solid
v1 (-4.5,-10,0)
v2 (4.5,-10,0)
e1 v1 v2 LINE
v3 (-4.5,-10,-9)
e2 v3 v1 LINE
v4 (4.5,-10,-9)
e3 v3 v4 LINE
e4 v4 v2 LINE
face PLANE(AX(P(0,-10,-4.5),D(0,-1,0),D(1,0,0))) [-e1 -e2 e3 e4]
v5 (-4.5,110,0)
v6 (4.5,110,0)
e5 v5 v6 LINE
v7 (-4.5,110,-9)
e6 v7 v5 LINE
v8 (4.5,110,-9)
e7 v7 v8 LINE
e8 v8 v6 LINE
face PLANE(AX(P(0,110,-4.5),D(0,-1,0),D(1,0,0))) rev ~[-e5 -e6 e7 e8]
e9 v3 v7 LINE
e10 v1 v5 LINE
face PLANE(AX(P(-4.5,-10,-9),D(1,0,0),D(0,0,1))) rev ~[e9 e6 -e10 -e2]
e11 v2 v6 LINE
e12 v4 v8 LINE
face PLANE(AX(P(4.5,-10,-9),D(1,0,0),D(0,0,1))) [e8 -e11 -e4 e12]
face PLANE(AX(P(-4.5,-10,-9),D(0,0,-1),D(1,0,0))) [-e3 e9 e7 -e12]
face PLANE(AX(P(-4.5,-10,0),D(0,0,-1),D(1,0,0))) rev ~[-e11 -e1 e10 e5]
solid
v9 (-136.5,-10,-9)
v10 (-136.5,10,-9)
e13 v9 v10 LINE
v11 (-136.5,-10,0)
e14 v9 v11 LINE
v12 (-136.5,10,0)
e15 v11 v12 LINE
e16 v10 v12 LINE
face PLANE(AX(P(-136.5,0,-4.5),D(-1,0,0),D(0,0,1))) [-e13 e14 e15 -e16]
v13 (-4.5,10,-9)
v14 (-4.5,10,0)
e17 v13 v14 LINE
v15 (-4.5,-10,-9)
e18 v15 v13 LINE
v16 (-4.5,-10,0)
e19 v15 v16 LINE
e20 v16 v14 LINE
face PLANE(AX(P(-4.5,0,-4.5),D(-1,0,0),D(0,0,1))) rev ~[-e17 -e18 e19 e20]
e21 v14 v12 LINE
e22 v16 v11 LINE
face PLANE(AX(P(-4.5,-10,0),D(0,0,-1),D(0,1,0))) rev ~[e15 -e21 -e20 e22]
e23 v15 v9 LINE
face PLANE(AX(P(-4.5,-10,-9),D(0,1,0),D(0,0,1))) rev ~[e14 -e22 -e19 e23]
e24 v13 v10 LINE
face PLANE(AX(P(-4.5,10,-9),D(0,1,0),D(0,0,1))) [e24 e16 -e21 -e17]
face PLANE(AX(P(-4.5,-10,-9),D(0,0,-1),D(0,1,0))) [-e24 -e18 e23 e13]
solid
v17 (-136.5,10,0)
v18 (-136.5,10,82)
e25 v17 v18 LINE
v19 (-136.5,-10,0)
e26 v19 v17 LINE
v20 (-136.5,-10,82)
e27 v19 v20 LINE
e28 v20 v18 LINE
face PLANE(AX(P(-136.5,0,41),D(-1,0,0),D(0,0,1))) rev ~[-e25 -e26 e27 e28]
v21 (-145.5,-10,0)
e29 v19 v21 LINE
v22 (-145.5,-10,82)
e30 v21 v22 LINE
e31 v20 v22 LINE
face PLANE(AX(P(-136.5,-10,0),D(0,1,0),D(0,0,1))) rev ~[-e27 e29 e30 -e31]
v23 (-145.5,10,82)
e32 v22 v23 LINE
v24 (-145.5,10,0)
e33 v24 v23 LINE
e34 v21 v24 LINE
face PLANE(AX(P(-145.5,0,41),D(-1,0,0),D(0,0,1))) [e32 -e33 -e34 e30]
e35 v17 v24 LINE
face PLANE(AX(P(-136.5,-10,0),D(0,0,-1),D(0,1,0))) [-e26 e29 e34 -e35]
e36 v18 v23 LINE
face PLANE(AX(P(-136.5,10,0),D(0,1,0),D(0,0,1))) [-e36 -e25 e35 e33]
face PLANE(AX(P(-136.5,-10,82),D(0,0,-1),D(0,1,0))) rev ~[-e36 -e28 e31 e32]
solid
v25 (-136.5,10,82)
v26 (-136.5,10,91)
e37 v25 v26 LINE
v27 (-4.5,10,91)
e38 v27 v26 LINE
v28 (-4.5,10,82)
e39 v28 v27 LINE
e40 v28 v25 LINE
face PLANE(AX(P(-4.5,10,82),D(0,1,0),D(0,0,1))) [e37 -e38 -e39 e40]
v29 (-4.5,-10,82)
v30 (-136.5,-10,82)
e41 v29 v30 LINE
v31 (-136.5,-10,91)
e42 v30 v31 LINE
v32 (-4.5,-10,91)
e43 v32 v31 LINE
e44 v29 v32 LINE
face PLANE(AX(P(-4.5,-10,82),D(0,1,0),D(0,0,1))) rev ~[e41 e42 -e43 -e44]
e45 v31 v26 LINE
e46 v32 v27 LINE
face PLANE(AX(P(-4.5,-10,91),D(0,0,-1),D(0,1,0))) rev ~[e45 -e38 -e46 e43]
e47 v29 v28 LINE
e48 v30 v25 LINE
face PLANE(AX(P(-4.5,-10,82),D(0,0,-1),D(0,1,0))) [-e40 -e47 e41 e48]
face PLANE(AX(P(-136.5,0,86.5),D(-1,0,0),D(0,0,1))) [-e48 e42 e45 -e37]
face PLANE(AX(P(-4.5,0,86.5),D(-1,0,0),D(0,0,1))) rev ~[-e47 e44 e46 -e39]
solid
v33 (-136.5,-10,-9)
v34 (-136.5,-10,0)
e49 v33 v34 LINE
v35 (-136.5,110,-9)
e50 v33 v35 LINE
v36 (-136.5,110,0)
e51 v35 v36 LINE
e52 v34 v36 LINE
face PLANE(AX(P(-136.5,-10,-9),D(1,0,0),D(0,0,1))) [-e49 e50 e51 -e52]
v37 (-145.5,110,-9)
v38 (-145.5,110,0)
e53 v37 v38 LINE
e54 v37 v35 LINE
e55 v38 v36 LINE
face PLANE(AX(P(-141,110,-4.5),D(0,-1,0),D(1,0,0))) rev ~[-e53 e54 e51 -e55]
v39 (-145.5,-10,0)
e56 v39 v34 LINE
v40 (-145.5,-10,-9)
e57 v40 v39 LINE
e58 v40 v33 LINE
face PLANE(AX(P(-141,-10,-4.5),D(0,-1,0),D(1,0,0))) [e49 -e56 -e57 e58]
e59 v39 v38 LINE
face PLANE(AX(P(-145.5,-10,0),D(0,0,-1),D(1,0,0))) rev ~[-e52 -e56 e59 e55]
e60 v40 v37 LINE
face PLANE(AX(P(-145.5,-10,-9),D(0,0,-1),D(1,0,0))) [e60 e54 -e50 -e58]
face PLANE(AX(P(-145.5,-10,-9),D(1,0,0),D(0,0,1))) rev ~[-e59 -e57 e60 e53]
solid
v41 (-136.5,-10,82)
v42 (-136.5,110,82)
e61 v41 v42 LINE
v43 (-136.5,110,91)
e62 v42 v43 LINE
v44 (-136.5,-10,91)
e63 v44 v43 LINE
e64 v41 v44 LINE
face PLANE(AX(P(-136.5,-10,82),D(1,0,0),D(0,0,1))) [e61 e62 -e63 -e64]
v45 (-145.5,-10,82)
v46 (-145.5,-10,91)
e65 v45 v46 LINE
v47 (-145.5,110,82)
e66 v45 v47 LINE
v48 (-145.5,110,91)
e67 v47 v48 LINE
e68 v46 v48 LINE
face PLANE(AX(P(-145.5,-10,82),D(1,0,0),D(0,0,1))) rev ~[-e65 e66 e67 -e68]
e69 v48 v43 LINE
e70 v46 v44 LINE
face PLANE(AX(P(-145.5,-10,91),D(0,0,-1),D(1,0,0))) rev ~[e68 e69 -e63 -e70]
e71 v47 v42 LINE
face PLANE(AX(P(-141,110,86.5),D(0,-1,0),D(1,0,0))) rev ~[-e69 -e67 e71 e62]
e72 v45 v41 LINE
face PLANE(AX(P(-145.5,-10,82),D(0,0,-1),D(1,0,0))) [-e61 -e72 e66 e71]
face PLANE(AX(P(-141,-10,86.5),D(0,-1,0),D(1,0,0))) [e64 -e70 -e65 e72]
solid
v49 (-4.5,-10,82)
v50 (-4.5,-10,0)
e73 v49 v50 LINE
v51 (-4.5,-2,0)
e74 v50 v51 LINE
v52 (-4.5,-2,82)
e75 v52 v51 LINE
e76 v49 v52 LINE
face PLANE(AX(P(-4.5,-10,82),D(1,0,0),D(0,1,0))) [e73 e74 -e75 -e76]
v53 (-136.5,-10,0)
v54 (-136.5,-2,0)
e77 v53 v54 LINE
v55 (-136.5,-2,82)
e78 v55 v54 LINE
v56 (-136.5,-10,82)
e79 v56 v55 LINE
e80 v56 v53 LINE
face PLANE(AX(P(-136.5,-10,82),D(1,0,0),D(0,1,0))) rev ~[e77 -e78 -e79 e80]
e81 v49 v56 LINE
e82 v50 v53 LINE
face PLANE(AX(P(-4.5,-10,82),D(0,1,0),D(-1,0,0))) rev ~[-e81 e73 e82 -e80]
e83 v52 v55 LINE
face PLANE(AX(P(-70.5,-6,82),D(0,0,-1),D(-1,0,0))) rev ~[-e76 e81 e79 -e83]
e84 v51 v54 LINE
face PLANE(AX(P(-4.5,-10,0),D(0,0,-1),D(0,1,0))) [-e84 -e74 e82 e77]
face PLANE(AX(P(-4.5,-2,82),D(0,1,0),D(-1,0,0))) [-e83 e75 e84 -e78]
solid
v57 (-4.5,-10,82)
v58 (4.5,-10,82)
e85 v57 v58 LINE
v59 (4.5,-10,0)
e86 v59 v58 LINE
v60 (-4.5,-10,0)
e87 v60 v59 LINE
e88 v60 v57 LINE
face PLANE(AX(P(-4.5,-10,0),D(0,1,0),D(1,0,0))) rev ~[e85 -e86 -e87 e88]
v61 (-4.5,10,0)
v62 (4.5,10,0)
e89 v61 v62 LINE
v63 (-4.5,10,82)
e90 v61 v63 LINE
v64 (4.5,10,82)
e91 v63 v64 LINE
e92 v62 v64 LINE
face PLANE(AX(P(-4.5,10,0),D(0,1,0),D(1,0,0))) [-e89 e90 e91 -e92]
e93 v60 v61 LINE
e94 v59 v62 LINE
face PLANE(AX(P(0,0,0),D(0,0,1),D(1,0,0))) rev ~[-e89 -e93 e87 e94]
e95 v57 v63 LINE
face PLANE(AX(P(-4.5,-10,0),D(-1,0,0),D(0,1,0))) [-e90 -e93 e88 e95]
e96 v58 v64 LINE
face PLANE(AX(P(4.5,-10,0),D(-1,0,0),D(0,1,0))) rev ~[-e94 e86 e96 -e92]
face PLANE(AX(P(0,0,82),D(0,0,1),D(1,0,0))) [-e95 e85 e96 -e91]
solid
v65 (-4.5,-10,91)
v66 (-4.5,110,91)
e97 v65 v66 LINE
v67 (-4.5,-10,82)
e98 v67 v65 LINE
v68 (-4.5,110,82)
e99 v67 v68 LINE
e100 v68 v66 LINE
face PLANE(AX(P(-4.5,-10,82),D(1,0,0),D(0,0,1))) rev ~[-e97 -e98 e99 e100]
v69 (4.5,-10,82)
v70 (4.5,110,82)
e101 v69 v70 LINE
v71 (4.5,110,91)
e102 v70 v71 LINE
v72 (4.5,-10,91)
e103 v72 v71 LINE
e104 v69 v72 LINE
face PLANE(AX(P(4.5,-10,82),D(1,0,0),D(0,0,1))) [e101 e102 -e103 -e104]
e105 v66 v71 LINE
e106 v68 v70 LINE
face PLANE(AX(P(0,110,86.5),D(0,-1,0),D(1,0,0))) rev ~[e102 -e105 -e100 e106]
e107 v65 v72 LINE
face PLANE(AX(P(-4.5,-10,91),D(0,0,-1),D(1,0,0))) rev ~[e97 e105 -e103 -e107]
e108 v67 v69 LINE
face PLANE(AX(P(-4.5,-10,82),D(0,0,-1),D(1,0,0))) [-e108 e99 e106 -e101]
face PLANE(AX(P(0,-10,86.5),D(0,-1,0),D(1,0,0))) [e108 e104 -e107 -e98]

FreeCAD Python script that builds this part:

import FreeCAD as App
import Part
import Sketcher

doc = App.newDocument("Part")
body = doc.addObject("PartDesign::Body", "Body")

# Sketch on XY plane
sketch1 = body.newObject("Sketcher::SketchObject", "Sketch")
sketch1.AttachmentSupport = (doc.getObject("XY_Plane"), [""])
sketch1.MapMode = "FlatFace"
sketch1.addGeometry([
    Part.LineSegment(App.Vector(-4, 10, 0), App.Vector(-4, -10, 0)),
    Part.LineSegment(App.Vector(-4, -10, 0), App.Vector(4, -10, 0)),
    Part.LineSegment(App.Vector(4, -10, 0), App.Vector(4, 10, 0)),
    Part.LineSegment(App.Vector(4, 10, 0), App.Vector(-4, 10, 0)),
], False)
sketch1.addConstraint([
    Sketcher.Constraint("Coincident", 0, 2, 1, 1),
    Sketcher.Constraint("Coincident", 1, 2, 2, 1),
    Sketcher.Constraint("Coincident", 2, 2, 3, 1),
    Sketcher.Constraint("Coincident", 3, 2, 0, 1),
    Sketcher.Constraint("Vertical", 0),
    Sketcher.Constraint("Horizontal", 1),
    Sketcher.Constraint("Vertical", 2),
    Sketcher.Constraint("Horizontal", 3),
    Sketcher.Constraint("Symmetric", 0, 2, 2, 2, -1, 1),
    Sketcher.Constraint("DistanceX", 1, 1, 1, 2, 9.0),
    Sketcher.Constraint("DistanceY", 0, 2, 0, 1, 20.0),
])
pad1 = body.newObject("PartDesign::Pad", "Pad")
pad1.Profile = sketch1
pad1.Length = 82
body2 = doc.addObject("PartDesign::Body", "Body001")

# Sketch on YZ plane
sketch2 = body2.newObject("Sketcher::SketchObject", "Sketch001")
sketch2.AttachmentSupport = (doc.getObject("YZ_Plane001"), [""])
sketch2.MapMode = "FlatFace"
sketch2.AttachmentOffset = App.Placement(App.Vector(0, 0, -4.5), App.Rotation())
sketch2.addGeometry([
    Part.LineSegment(App.Vector(10, 82, 0), App.Vector(-10, 82, 0)),
    Part.LineSegment(App.Vector(-10, 82, 0), App.Vector(-10, 91, 0)),
    Part.LineSegment(App.Vector(-10, 91, 0), App.Vector(10, 91, 0)),
    Part.LineSegment(App.Vector(10, 91, 0), App.Vector(10, 82, 0)),
], False)
sketch2.addConstraint([
    Sketcher.Constraint("Coincident", 0, 2, 1, 1),
    Sketcher.Constraint("Coincident", 1, 2, 2, 1),
    Sketcher.Constraint("Coincident", 2, 2, 3, 1),
    Sketcher.Constraint("Coincident", 3, 2, 0, 1),
    Sketcher.Constraint("Horizontal", 0),
    Sketcher.Constraint("Vertical", 1),
    Sketcher.Constraint("Horizontal", 2),
    Sketcher.Constraint("Vertical", 3),
    Sketcher.Constraint("DistanceX", 0, 2, 0, 1, 20.0),
    Sketcher.Constraint("DistanceY", 1, 1, 1, 2, 9.0),
    Sketcher.Constraint("DistanceX", 0, 2, -1, 1, 10.0),
    Sketcher.Constraint("DistanceY", -1, 1, 0, 2, 82.0),
])
pad2 = body2.newObject("PartDesign::Pad", "Pad001")
pad2.Profile = sketch2
pad2.Length = 132
pad2.Reversed = True
body3 = doc.addObject("PartDesign::Body", "Body002")

# Sketch on YZ plane
sketch3 = body3.newObject("Sketcher::SketchObject", "Sketch002")
sketch3.AttachmentSupport = (doc.getObject("YZ_Plane002"), [""])
sketch3.MapMode = "FlatFace"
sketch3.AttachmentOffset = App.Placement(App.Vector(0, 0, -136.5), App.Rotation())
sketch3.addGeometry([
    Part.LineSegment(App.Vector(10, 0, 0), App.Vector(-10, 0, 0)),
    Part.LineSegment(App.Vector(-10, 0, 0), App.Vector(-10, 82, 0)),
    Part.LineSegment(App.Vector(-10, 82, 0), App.Vector(10, 82, 0)),
    Part.LineSegment(App.Vector(10, 82, 0), App.Vector(10, 0, 0)),
], False)
sketch3.addConstraint([
    Sketcher.Constraint("Coincident", 0, 2, 1, 1),
    Sketcher.Constraint("Coincident", 1, 2, 2, 1),
    Sketcher.Constraint("Coincident", 2, 2, 3, 1),
    Sketcher.Constraint("Coincident", 3, 2, 0, 1),
    Sketcher.Constraint("Horizontal", 0),
    Sketcher.Constraint("Vertical", 1),
    Sketcher.Constraint("Horizontal", 2),
    Sketcher.Constraint("Vertical", 3),
    Sketcher.Constraint("Symmetric", 0, 2, 3, 2, -1, 1),
    Sketcher.Constraint("DistanceX", 0, 2, 0, 1, 20.0),
    Sketcher.Constraint("DistanceY", 1, 1, 1, 2, 82.0),
])
pad3 = body3.newObject("PartDesign::Pad", "Pad002")
pad3.Profile = sketch3
pad3.Length = 9
pad3.Reversed = True
body4 = doc.addObject("PartDesign::Body", "Body003")

# Sketch on YZ plane
sketch4 = body4.newObject("Sketcher::SketchObject", "Sketch003")
sketch4.AttachmentSupport = (doc.getObject("YZ_Plane003"), [""])
sketch4.MapMode = "FlatFace"
sketch4.AttachmentOffset = App.Placement(App.Vector(0, 0, -4.5), App.Rotation())
sketch4.addGeometry([
    Part.LineSegment(App.Vector(10, -9, 0), App.Vector(-10, -9, 0)),
    Part.LineSegment(App.Vector(-10, -9, 0), App.Vector(-10, 0, 0)),
    Part.LineSegment(App.Vector(-10, 0, 0), App.Vector(10, 0, 0)),
    Part.LineSegment(App.Vector(10, 0, 0), App.Vector(10, -9, 0)),
], False)
sketch4.addConstraint([
    Sketcher.Constraint("Coincident", 0, 2, 1, 1),
    Sketcher.Constraint("Coincident", 1, 2, 2, 1),
    Sketcher.Constraint("Coincident", 2, 2, 3, 1),
    Sketcher.Constraint("Coincident", 3, 2, 0, 1),
    Sketcher.Constraint("Horizontal", 0),
    Sketcher.Constraint("Vertical", 1),
    Sketcher.Constraint("Horizontal", 2),
    Sketcher.Constraint("Vertical", 3),
    Sketcher.Constraint("Symmetric", 1, 2, 2, 2, -1, 1),
    Sketcher.Constraint("DistanceX", 0, 2, 0, 1, 20.0),
    Sketcher.Constraint("DistanceY", 1, 1, 1, 2, 9.0),
])
pad4 = body4.newObject("PartDesign::Pad", "Pad003")
pad4.Profile = sketch4
pad4.Length = 132
pad4.Reversed = True
body5 = doc.addObject("PartDesign::Body", "Body004")

# Sketch on XY plane
sketch5 = body5.newObject("Sketcher::SketchObject", "Sketch004")
sketch5.AttachmentSupport = (doc.getObject("XY_Plane004"), [""])
sketch5.MapMode = "FlatFace"
sketch5.AttachmentOffset = App.Placement(App.Vector(0, 0, 82), App.Rotation())
sketch5.addGeometry([
    Part.LineSegment(App.Vector(-4, -2, 0), App.Vector(-4, -10, 0)),
    Part.LineSegment(App.Vector(-4, -10, 0), App.Vector(-136, -10, 0)),
    Part.LineSegment(App.Vector(-136, -10, 0), App.Vector(-136, -2, 0)),
    Part.LineSegment(App.Vector(-136, -2, 0), App.Vector(-4, -2, 0)),
], False)
sketch5.addConstraint([
    Sketcher.Constraint("Coincident", 0, 2, 1, 1),
    Sketcher.Constraint("Coincident", 1, 2, 2, 1),
    Sketcher.Constraint("Coincident", 2, 2, 3, 1),
    Sketcher.Constraint("Coincident", 3, 2, 0, 1),
    Sketcher.Constraint("Vertical", 0),
    Sketcher.Constraint("Horizontal", 1),
    Sketcher.Constraint("Vertical", 2),
    Sketcher.Constraint("Horizontal", 3),
    Sketcher.Constraint("DistanceX", 1, 2, 1, 1, 132.0),
    Sketcher.Constraint("DistanceY", 0, 2, 0, 1, 8.0),
    Sketcher.Constraint("DistanceY", 0, 2, -1, 1, 10.0),
    Sketcher.Constraint("DistanceX", 0, 2, -1, 1, 4.5),
])
pad5 = body5.newObject("PartDesign::Pad", "Pad004")
pad5.Profile = sketch5
pad5.Length = 82
pad5.Reversed = True
body6 = doc.addObject("PartDesign::Body", "Body005")

# Sketch on XZ plane
sketch6 = body6.newObject("Sketcher::SketchObject", "Sketch005")
sketch6.AttachmentSupport = (doc.getObject("XZ_Plane005"), [""])
sketch6.MapMode = "FlatFace"
sketch6.AttachmentOffset = App.Placement(App.Vector(0, 0, 10), App.Rotation())
sketch6.addGeometry([
    Part.LineSegment(App.Vector(-146, 91, 0), App.Vector(-146, 82, 0)),
    Part.LineSegment(App.Vector(-146, 82, 0), App.Vector(-136, 82, 0)),
    Part.LineSegment(App.Vector(-136, 82, 0), App.Vector(-136, 91, 0)),
    Part.LineSegment(App.Vector(-136, 91, 0), App.Vector(-146, 91, 0)),
], False)
sketch6.addConstraint([
    Sketcher.Constraint("Coincident", 0, 2, 1, 1),
    Sketcher.Constraint("Coincident", 1, 2, 2, 1),
    Sketcher.Constraint("Coincident", 2, 2, 3, 1),
    Sketcher.Constraint("Coincident", 3, 2, 0, 1),
    Sketcher.Constraint("Vertical", 0),
    Sketcher.Constraint("Horizontal", 1),
    Sketcher.Constraint("Vertical", 2),
    Sketcher.Constraint("Horizontal", 3),
    Sketcher.Constraint("Equal", 3, 0),
    Sketcher.Constraint("DistanceX", 1, 1, 1, 2, 9.0),
    Sketcher.Constraint("DistanceY", -1, 1, 0, 2, 82.0),
    Sketcher.Constraint("DistanceX", 0, 2, -1, 1, 145.5),
])
pad6 = body6.newObject("PartDesign::Pad", "Pad005")
pad6.Profile = sketch6
pad6.Length = 120
pad6.Reversed = True
body7 = doc.addObject("PartDesign::Body", "Body006")

# Sketch on XZ plane
sketch7 = body7.newObject("Sketcher::SketchObject", "Sketch006")
sketch7.AttachmentSupport = (doc.getObject("XZ_Plane006"), [""])
sketch7.MapMode = "FlatFace"
sketch7.AttachmentOffset = App.Placement(App.Vector(0, 0, 10), App.Rotation())
sketch7.addGeometry([
    Part.LineSegment(App.Vector(-4, 91, 0), App.Vector(-4, 82, 0)),
    Part.LineSegment(App.Vector(-4, 82, 0), App.Vector(4, 82, 0)),
    Part.LineSegment(App.Vector(4, 82, 0), App.Vector(4, 91, 0)),
    Part.LineSegment(App.Vector(4, 91, 0), App.Vector(-4, 91, 0)),
], False)
sketch7.addConstraint([
    Sketcher.Constraint("Coincident", 0, 2, 1, 1),
    Sketcher.Constraint("Coincident", 1, 2, 2, 1),
    Sketcher.Constraint("Coincident", 2, 2, 3, 1),
    Sketcher.Constraint("Coincident", 3, 2, 0, 1),
    Sketcher.Constraint("Vertical", 0),
    Sketcher.Constraint("Horizontal", 1),
    Sketcher.Constraint("Vertical", 2),
    Sketcher.Constraint("Horizontal", 3),
    Sketcher.Constraint("Equal", 3, 0),
    Sketcher.Constraint("DistanceX", 1, 1, 1, 2, 9.0),
    Sketcher.Constraint("DistanceY", -1, 1, 0, 2, 82.0),
    Sketcher.Constraint("DistanceX", 0, 2, -1, 1, 4.5),
])
pad7 = body7.newObject("PartDesign::Pad", "Pad006")
pad7.Profile = sketch7
pad7.Length = 120
pad7.Reversed = True
body8 = doc.addObject("PartDesign::Body", "Body007")

# Sketch on XZ plane
sketch8 = body8.newObject("Sketcher::SketchObject", "Sketch007")
sketch8.AttachmentSupport = (doc.getObject("XZ_Plane007"), [""])
sketch8.MapMode = "FlatFace"
sketch8.AttachmentOffset = App.Placement(App.Vector(0, 0, 10), App.Rotation())
sketch8.addGeometry([
    Part.LineSegment(App.Vector(-4, 0, 0), App.Vector(-4, -9, 0)),
    Part.LineSegment(App.Vector(-4, -9, 0), App.Vector(4, -9, 0)),
    Part.LineSegment(App.Vector(4, -9, 0), App.Vector(4, 0, 0)),
    Part.LineSegment(App.Vector(4, 0, 0), App.Vector(-4, 0, 0)),
], False)
sketch8.addConstraint([
    Sketcher.Constraint("Coincident", 0, 2, 1, 1),
    Sketcher.Constraint("Coincident", 1, 2, 2, 1),
    Sketcher.Constraint("Coincident", 2, 2, 3, 1),
    Sketcher.Constraint("Coincident", 3, 2, 0, 1),
    Sketcher.Constraint("Vertical", 0),
    Sketcher.Constraint("Horizontal", 1),
    Sketcher.Constraint("Vertical", 2),
    Sketcher.Constraint("Horizontal", 3),
    Sketcher.Constraint("Symmetric", 2, 2, 3, 2, -1, 1),
    Sketcher.Constraint("Equal", 3, 0),
    Sketcher.Constraint("DistanceX", 1, 1, 1, 2, 9.0),
])
pad8 = body8.newObject("PartDesign::Pad", "Pad007")
pad8.Profile = sketch8
pad8.Length = 120
pad8.Reversed = True
body9 = doc.addObject("PartDesign::Body", "Body008")

# Sketch on XZ plane
sketch9 = body9.newObject("Sketcher::SketchObject", "Sketch008")
sketch9.AttachmentSupport = (doc.getObject("XZ_Plane008"), [""])
sketch9.MapMode = "FlatFace"
sketch9.AttachmentOffset = App.Placement(App.Vector(0, 0, 10), App.Rotation())
sketch9.addGeometry([
    Part.LineSegment(App.Vector(-146, 0, 0), App.Vector(-146, -9, 0)),
    Part.LineSegment(App.Vector(-146, -9, 0), App.Vector(-136, -9, 0)),
    Part.LineSegment(App.Vector(-136, -9, 0), App.Vector(-136, 0, 0)),
    Part.LineSegment(App.Vector(-136, 0, 0), App.Vector(-146, 0, 0)),
], False)
sketch9.addConstraint([
    Sketcher.Constraint("Coincident", 0, 2, 1, 1),
    Sketcher.Constraint("Coincident", 1, 2, 2, 1),
    Sketcher.Constraint("Coincident", 2, 2, 3, 1),
    Sketcher.Constraint("Coincident", 3, 2, 0, 1),
    Sketcher.Constraint("Vertical", 0),
    Sketcher.Constraint("Horizontal", 1),
    Sketcher.Constraint("Vertical", 2),
    Sketcher.Constraint("Horizontal", 3),
    Sketcher.Constraint("PointOnObject", 2, 2, -1),
    Sketcher.Constraint("Equal", 3, 0),
    Sketcher.Constraint("DistanceX", 1, 1, 1, 2, 9.0),
    Sketcher.Constraint("DistanceX", 0, 2, -1, 1, 145.5),
])
pad9 = body9.newObject("PartDesign::Pad", "Pad008")
pad9.Profile = sketch9
pad9.Length = 120
pad9.Reversed = True

doc.recompute()
